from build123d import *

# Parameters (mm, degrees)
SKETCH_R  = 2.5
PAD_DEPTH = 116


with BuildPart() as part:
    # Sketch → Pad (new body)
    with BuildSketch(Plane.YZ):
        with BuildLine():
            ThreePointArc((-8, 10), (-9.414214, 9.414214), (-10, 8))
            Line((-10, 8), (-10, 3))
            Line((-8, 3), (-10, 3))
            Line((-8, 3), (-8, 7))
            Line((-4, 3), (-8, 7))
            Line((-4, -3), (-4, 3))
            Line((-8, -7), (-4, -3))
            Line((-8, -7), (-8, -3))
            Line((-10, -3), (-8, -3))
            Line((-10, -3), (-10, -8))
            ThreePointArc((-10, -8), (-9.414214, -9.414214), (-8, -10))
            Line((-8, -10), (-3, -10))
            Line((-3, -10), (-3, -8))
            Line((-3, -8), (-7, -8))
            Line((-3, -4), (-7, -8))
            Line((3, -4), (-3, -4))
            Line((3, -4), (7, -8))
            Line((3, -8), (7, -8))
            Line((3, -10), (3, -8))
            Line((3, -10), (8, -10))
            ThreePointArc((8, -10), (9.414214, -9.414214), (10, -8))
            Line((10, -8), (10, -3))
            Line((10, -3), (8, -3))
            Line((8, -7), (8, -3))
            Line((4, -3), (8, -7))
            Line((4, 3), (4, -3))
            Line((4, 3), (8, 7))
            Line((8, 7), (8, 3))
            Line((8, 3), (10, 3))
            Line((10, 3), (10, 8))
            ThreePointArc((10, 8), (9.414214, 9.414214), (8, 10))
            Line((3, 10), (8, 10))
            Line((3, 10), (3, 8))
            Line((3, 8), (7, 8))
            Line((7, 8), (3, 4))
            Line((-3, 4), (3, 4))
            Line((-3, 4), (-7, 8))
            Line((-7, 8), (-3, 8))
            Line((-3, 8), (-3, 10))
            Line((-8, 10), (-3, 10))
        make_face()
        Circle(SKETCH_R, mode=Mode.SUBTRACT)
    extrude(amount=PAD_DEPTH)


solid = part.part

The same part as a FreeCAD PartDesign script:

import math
import FreeCAD as App
import Part
import Sketcher

V = App.Vector
Q = App.Units.Quantity

doc = App.newDocument("Part")
body = doc.addObject("PartDesign::Body", "Body")

sketch1 = doc.addObject("Sketcher::SketchObject", "Sketch")
body.addObject(sketch1)
sketch1.AttachmentSupport = (doc.YZ_Plane, [""])
sketch1.MapMode = "FlatFace"
sketch1.addGeometry([
    Part.ArcOfCircle(Part.Circle(V(-8, 8, 0), V(0, 0, 1), 2), math.radians(90), math.radians(180)),
    Part.LineSegment(V(-10, 8, 0), V(-10, 3, 0)),
    Part.LineSegment(V(-10, 3, 0), V(-8, 3, 0)),
    Part.LineSegment(V(-8, 3, 0), V(-8, 7, 0)),
    Part.LineSegment(V(-8, 7, 0), V(-4, 3, 0)),
    Part.LineSegment(V(-4, 3, 0), V(-4, -3, 0)),
    Part.LineSegment(V(-4, -3, 0), V(-8, -7, 0)),
    Part.LineSegment(V(-8, -7, 0), V(-8, -3, 0)),
    Part.LineSegment(V(-8, -3, 0), V(-10, -3, 0)),
    Part.LineSegment(V(-10, -3, 0), V(-10, -8, 0)),
    Part.ArcOfCircle(Part.Circle(V(-8, -8, 0), V(0, 0, 1), 2), math.radians(180), math.radians(270)),
    Part.LineSegment(V(-8, -10, 0), V(-3, -10, 0)),
    Part.LineSegment(V(-3, -10, 0), V(-3, -8, 0)),
    Part.LineSegment(V(-3, -8, 0), V(-7, -8, 0)),
    Part.LineSegment(V(-7, -8, 0), V(-3, -4, 0)),
    Part.LineSegment(V(-3, -4, 0), V(3, -4, 0)),
    Part.LineSegment(V(3, -4, 0), V(7, -8, 0)),
    Part.LineSegment(V(7, -8, 0), V(3, -8, 0)),
    Part.LineSegment(V(3, -8, 0), V(3, -10, 0)),
    Part.LineSegment(V(3, -10, 0), V(8, -10, 0)),
    Part.ArcOfCircle(Part.Circle(V(8, -8, 0), V(0, 0, 1), 2), math.radians(-90), math.radians(0)),
    Part.LineSegment(V(10, -8, 0), V(10, -3, 0)),
    Part.LineSegment(V(10, -3, 0), V(8, -3, 0)),
    Part.LineSegment(V(8, -3, 0), V(8, -7, 0)),
    Part.LineSegment(V(8, -7, 0), V(4, -3, 0)),
    Part.LineSegment(V(4, -3, 0), V(4, 3, 0)),
    Part.LineSegment(V(4, 3, 0), V(8, 7, 0)),
    Part.LineSegment(V(8, 7, 0), V(8, 3, 0)),
    Part.LineSegment(V(8, 3, 0), V(10, 3, 0)),
    Part.LineSegment(V(10, 3, 0), V(10, 8, 0)),
    Part.ArcOfCircle(Part.Circle(V(8, 8, 0), V(0, 0, 1), 2), math.radians(0), math.radians(90)),
    Part.LineSegment(V(8, 10, 0), V(3, 10, 0)),
    Part.LineSegment(V(3, 10, 0), V(3, 8, 0)),
    Part.LineSegment(V(3, 8, 0), V(7, 8, 0)),
    Part.LineSegment(V(7, 8, 0), V(3, 4, 0)),
    Part.LineSegment(V(3, 4, 0), V(-3, 4, 0)),
    Part.LineSegment(V(-3, 4, 0), V(-7, 8, 0)),
    Part.LineSegment(V(-7, 8, 0), V(-3, 8, 0)),
    Part.LineSegment(V(-3, 8, 0), V(-3, 10, 0)),
    Part.LineSegment(V(-3, 10, 0), V(-8, 10, 0)),
    Part.Circle(V(0, 0, 0), V(0, 0, 1), 2.5),
], False)
sketch1.addConstraint([
    Sketcher.Constraint("Tangent", 0, 2, 1, 1),
    Sketcher.Constraint("Coincident", 1, 2, 2, 1),
    Sketcher.Constraint("Coincident", 2, 2, 3, 1),
    Sketcher.Constraint("Coincident", 3, 2, 4, 1),
    Sketcher.Constraint("Coincident", 4, 2, 5, 1),
    Sketcher.Constraint("Coincident", 5, 2, 6, 1),
    Sketcher.Constraint("Coincident", 6, 2, 7, 1),
    Sketcher.Constraint("Coincident", 7, 2, 8, 1),
    Sketcher.Constraint("Coincident", 8, 2, 9, 1),
    Sketcher.Constraint("Tangent", 9, 2, 10, 1),
    Sketcher.Constraint("Tangent", 10, 2, 11, 1),
    Sketcher.Constraint("Coincident", 11, 2, 12, 1),
    Sketcher.Constraint("Coincident", 12, 2, 13, 1),
    Sketcher.Constraint("Coincident", 13, 2, 14, 1),
    Sketcher.Constraint("Coincident", 14, 2, 15, 1),
    Sketcher.Constraint("Coincident", 15, 2, 16, 1),
    Sketcher.Constraint("Coincident", 16, 2, 17, 1),
    Sketcher.Constraint("Coincident", 17, 2, 18, 1),
    Sketcher.Constraint("Coincident", 18, 2, 19, 1),
    Sketcher.Constraint("Tangent", 19, 2, 20, 1),
    Sketcher.Constraint("Tangent", 20, 2, 21, 1),
    Sketcher.Constraint("Coincident", 21, 2, 22, 1),
    Sketcher.Constraint("Coincident", 22, 2, 23, 1),
    Sketcher.Constraint("Coincident", 23, 2, 24, 1),
    Sketcher.Constraint("Coincident", 24, 2, 25, 1),
    Sketcher.Constraint("Coincident", 25, 2, 26, 1),
    Sketcher.Constraint("Coincident", 26, 2, 27, 1),
    Sketcher.Constraint("Coincident", 27, 2, 28, 1),
    Sketcher.Constraint("Coincident", 28, 2, 29, 1),
    Sketcher.Constraint("Tangent", 29, 2, 30, 1),
    Sketcher.Constraint("Tangent", 30, 2, 31, 1),
    Sketcher.Constraint("Coincident", 31, 2, 32, 1),
    Sketcher.Constraint("Coincident", 32, 2, 33, 1),
    Sketcher.Constraint("Coincident", 33, 2, 34, 1),
    Sketcher.Constraint("Coincident", 34, 2, 35, 1),
    Sketcher.Constraint("Coincident", 35, 2, 36, 1),
    Sketcher.Constraint("Coincident", 36, 2, 37, 1),
    Sketcher.Constraint("Coincident", 37, 2, 38, 1),
    Sketcher.Constraint("Coincident", 38, 2, 39, 1),
    Sketcher.Constraint("Tangent", 39, 2, 0, 1),
    Sketcher.Constraint("Vertical", 1),
    Sketcher.Constraint("Horizontal", 2),
    Sketcher.Constraint("Vertical", 3),
    Sketcher.Constraint("Vertical", 5),
    Sketcher.Constraint("Vertical", 7),
    Sketcher.Constraint("Horizontal", 8),
    Sketcher.Constraint("Vertical", 9),
    Sketcher.Constraint("Horizontal", 11),
    Sketcher.Constraint("Vertical", 12),
    Sketcher.Constraint("Horizontal", 13),
    Sketcher.Constraint("Horizontal", 15),
    Sketcher.Constraint("Horizontal", 17),
    Sketcher.Constraint("Vertical", 18),
    Sketcher.Constraint("Horizontal", 19),
    Sketcher.Constraint("Vertical", 21),
    Sketcher.Constraint("Horizontal", 22),
    Sketcher.Constraint("Vertical", 23),
    Sketcher.Constraint("Vertical", 25),
    Sketcher.Constraint("Vertical", 27),
    Sketcher.Constraint("Horizontal", 28),
    Sketcher.Constraint("Vertical", 29),
    Sketcher.Constraint("Horizontal", 31),
    Sketcher.Constraint("Vertical", 32),
    Sketcher.Constraint("Horizontal", 33),
    Sketcher.Constraint("Horizontal", 35),
    Sketcher.Constraint("Horizontal", 37),
    Sketcher.Constraint("Vertical", 38),
    Sketcher.Constraint("Horizontal", 39),
    Sketcher.Constraint("Coincident", 40, 3, -1, 1),
    Sketcher.Constraint("Equal", 0, 10),
    Sketcher.Constraint("Equal", 10, 20),
    Sketcher.Constraint("Equal", 20, 30),
    Sketcher.Constraint("Symmetric", 0, 3, 20, 3, -1, 1),
    Sketcher.Constraint("Symmetric", 10, 3, 30, 3, -1, 1),
    Sketcher.Constraint("Symmetric", 2, 2, 22, 2, -1, 1),
    Sketcher.Constraint("Symmetric", 4, 2, 24, 2, -1, 1),
    Sketcher.Constraint("Symmetric", 6, 2, 26, 2, -1, 1),
    Sketcher.Constraint("Symmetric", 12, 2, 32, 2, -1, 1),
    Sketcher.Constraint("Symmetric", 14, 2, 34, 2, -1, 1),
    Sketcher.Constraint("Symmetric", 16, 2, 36, 2, -1, 1),
    Sketcher.Constraint("Symmetric", 10, 3, 20, 3, -2),
    Sketcher.Constraint("Symmetric", 13, 2, 16, 2, -2),
    Sketcher.Constraint("Symmetric", 7, 2, 22, 2, -2),
    Sketcher.Constraint("Perpendicular", 4, 6),
    Sketcher.Constraint("Parallel", 6, 14),
    Sketcher.Constraint("Perpendicular", 14, 16),
    Sketcher.Constraint("Parallel", 16, 24),
    Sketcher.Constraint("Perpendicular", 24, 26),
    Sketcher.Constraint("Parallel", 26, 34),
    Sketcher.Constraint("Perpendicular", 34, 36),
    Sketcher.Constraint("Horizontal", 2, 2, 4, 2),
    Sketcher.Constraint("Horizontal", 5, 2, 7, 2),
    Sketcher.Constraint("Horizontal", 9, 2, 12, 2),
    Sketcher.Constraint("Horizontal", 6, 2, 23, 2),
    Sketcher.Constraint("Horizontal", 25, 2, 27, 2),
    Sketcher.Constraint("Vertical", 10, 3, 2, 2),
    Sketcher.Constraint("Vertical", 12, 2, 14, 2),
    Sketcher.Constraint("Vertical", 15, 2, 17, 2),
    Sketcher.Constraint("Vertical", 35, 2, 37, 2),
    Sketcher.Constraint("Equal", 39, 1),
    Sketcher.Constraint("Equal", 37, 3),
    Sketcher.Constraint("Equal", 35, 5),
    Sketcher.Constraint("Diameter", 40, Q("5 mm")),
    Sketcher.Constraint("Radius", 0, Q("1.999999 mm")),
    Sketcher.Constraint("DistanceX", 11, 1, 11, 2, Q("5 mm")),
    Sketcher.Constraint("DistanceX", 13, 2, 13, 1, Q("4 mm")),
    Sketcher.Constraint("DistanceX", 15, 1, 15, 2, Q("6 mm")),
])
pad1 = doc.addObject("PartDesign::Pad", "Pad")
body.addObject(pad1)
pad1.Profile = sketch1
pad1.Length = 116

doc.recompute()
